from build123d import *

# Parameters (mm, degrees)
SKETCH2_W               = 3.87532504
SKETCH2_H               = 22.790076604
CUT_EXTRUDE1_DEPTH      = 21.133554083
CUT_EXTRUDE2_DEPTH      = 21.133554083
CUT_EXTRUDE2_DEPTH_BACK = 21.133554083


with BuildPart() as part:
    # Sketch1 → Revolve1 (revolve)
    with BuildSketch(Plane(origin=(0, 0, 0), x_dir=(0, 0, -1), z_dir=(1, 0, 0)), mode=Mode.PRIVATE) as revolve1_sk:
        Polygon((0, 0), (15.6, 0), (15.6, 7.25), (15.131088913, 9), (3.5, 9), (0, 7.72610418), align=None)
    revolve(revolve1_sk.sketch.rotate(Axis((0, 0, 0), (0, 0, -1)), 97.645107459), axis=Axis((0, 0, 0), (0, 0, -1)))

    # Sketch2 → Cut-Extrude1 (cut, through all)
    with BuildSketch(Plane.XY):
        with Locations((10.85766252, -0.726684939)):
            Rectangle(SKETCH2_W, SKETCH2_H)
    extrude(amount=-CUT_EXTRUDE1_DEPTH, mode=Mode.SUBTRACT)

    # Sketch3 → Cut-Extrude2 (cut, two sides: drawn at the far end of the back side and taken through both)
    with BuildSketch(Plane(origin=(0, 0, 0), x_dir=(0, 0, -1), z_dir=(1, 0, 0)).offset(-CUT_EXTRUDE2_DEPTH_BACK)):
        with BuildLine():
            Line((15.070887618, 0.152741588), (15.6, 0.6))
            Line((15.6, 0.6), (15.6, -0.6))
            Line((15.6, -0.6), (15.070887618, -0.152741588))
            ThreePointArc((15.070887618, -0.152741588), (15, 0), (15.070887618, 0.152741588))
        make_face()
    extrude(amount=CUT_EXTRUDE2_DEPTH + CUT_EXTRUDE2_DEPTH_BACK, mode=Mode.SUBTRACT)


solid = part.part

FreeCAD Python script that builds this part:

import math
import FreeCAD as App
import Part
import Sketcher
Q = App.Units.Quantity

doc = App.newDocument("Part")
params = doc.addObject("Spreadsheet::Sheet", "Params")
for row, (alias, value) in enumerate([
    ("sketch1_height", "15.6 mm"),
    ("sketch1_width", "7.25 mm"),
    ("revolution_angle", "360 deg"),
    ("sketch3_radius", "0.2 mm"),
    ("sketch3_width", "1.2 mm"),
], start=1):
    params.set(f"A{row}", alias)
    params.set(f"B{row}", "=" + value)
    params.setAlias(f"B{row}", alias)

body = doc.addObject("PartDesign::Body", "Body")

# Sketch on YZ plane
sketch1 = body.newObject("Sketcher::SketchObject", "Sketch")
sketch1.AttachmentSupport = (doc.getObject("YZ_Plane"), [""])
sketch1.MapMode = "FlatFace"
sketch1.addGeometry([
    Part.LineSegment(App.Vector(0, 0, 0), App.Vector(0, -15.6, 0)),  # 0
    Part.LineSegment(App.Vector(0, -15.6, 0), App.Vector(7.2, -15.6, 0)),  # 1
    Part.LineSegment(App.Vector(7.2, -15.6, 0), App.Vector(9, -15.1, 0)),  # 2
    Part.LineSegment(App.Vector(9, -15.1, 0), App.Vector(9, -3.5, 0)),  # 3
    Part.LineSegment(App.Vector(9, -3.5, 0), App.Vector(7.7, 0, 0)),  # 4
    Part.LineSegment(App.Vector(7.7, 0, 0), App.Vector(0, 0, 0)),  # 5
], False)
sketch1.addConstraint([
    Sketcher.Constraint("Coincident", 0, 2, 1, 1),
    Sketcher.Constraint("Coincident", 1, 2, 2, 1),
    Sketcher.Constraint("Coincident", 2, 2, 3, 1),
    Sketcher.Constraint("Coincident", 3, 2, 4, 1),
    Sketcher.Constraint("Coincident", 4, 2, 5, 1),
    Sketcher.Constraint("Coincident", 5, 2, 0, 1),
    Sketcher.Constraint("Vertical", 0),
    Sketcher.Constraint("Horizontal", 1),
    Sketcher.Constraint("Vertical", 3),
    Sketcher.Constraint("Horizontal", 5),
    Sketcher.Constraint("Coincident", 5, 2, -1, 1),
    Sketcher.Constraint("Angle", 2, Q("15 deg")),
    Sketcher.Constraint("Angle", 4, Q("110 deg")),
    Sketcher.Constraint("DistanceY", 0, 2, 0, 1, 15.6),
    Sketcher.Constraint("DistanceX", -1, 1, 2, 2, 9.0),
    Sketcher.Constraint("DistanceX", 1, 1, 1, 2, 7.25),
    Sketcher.Constraint("DistanceY", 3, 2, -1, 1, 3.5),
])
sketch1.setExpression("Constraints[13]", "Params.sketch1_height")
sketch1.setExpression("Constraints[15]", "Params.sketch1_width")
revolution = body.newObject("PartDesign::Revolution", "Revolution")
revolution.Profile = sketch1
revolution.ReferenceAxis = (sketch1, ["V_Axis"])
revolution.setExpression("Angle", "Params.revolution_angle")

# Sketch on XY plane
sketch2 = body.newObject("Sketcher::SketchObject", "Sketch001")
sketch2.AttachmentSupport = (doc.getObject("XY_Plane"), [""])
sketch2.MapMode = "FlatFace"
sketch2.addGeometry([
    Part.LineSegment(App.Vector(8.9, 10.7, 0), App.Vector(8.9, -12.1, 0)),
    Part.LineSegment(App.Vector(8.9, -12.1, 0), App.Vector(12.8, -12.1, 0)),
    Part.LineSegment(App.Vector(12.8, -12.1, 0), App.Vector(12.8, 10.7, 0)),
    Part.LineSegment(App.Vector(12.8, 10.7, 0), App.Vector(8.9, 10.7, 0)),
], False)
sketch2.addConstraint([
    Sketcher.Constraint("Coincident", 0, 2, 1, 1),
    Sketcher.Constraint("Coincident", 1, 2, 2, 1),
    Sketcher.Constraint("Coincident", 2, 2, 3, 1),
    Sketcher.Constraint("Coincident", 3, 2, 0, 1),
    Sketcher.Constraint("Vertical", 0),
    Sketcher.Constraint("Horizontal", 1),
    Sketcher.Constraint("Vertical", 2),
    Sketcher.Constraint("Horizontal", 3),
    Sketcher.Constraint("DistanceX", -1, 1, 0, 2, 8.92),
    Sketcher.Constraint("DistanceX", 1, 1, 1, 2, 3.875325),
    Sketcher.Constraint("DistanceY", 0, 2, 0, 1, 22.790077),
    Sketcher.Constraint("DistanceY", 0, 2, -1, 1, 12.121723),
])
pocket1 = body.newObject("PartDesign::Pocket", "Pocket")
pocket1.Profile = sketch2
pocket1.Type = "ThroughAll"

# Sketch on YZ plane
sketch3 = body.newObject("Sketcher::SketchObject", "Sketch002")
sketch3.AttachmentSupport = (doc.getObject("YZ_Plane"), [""])
sketch3.MapMode = "FlatFace"
sketch3.addGeometry([
    Part.LineSegment(App.Vector(0.6, -15.6, 0), App.Vector(0.15, -15.07, 0)),
    Part.ArcOfCircle(Part.Circle(App.Vector(0, -15.2, 0), App.Vector(0, 0, 1), 0.2), math.radians(40), math.radians(140)),
    Part.LineSegment(App.Vector(-0.15, -15.07, 0), App.Vector(-0.6, -15.6, 0)),
    Part.LineSegment(App.Vector(-0.6, -15.6, 0), App.Vector(0.6, -15.6, 0)),
], False)
sketch3.addConstraint([
    Sketcher.Constraint("Tangent", 0, 2, 1, 1),
    Sketcher.Constraint("Tangent", 1, 2, 2, 1),
    Sketcher.Constraint("Coincident", 2, 2, 3, 1),
    Sketcher.Constraint("Coincident", 3, 2, 0, 1),
    Sketcher.Constraint("Horizontal", 3),
    Sketcher.Constraint("Symmetric", 0, 2, 1, 2, -2),
    Sketcher.Constraint("Radius", 1, 0.2),
    Sketcher.Constraint("DistanceX", 3, 1, 3, 2, 1.2),
    Sketcher.Constraint("DistanceY", 1, 3, -1, 1, 15.2),
    Sketcher.Constraint("DistanceY", 2, 2, -1, 1, 15.6),
])
sketch3.setExpression("Constraints[6]", "Params.sketch3_radius")
sketch3.setExpression("Constraints[7]", "Params.sketch3_width")
pocket2 = body.newObject("PartDesign::Pocket", "Pocket001")
pocket2.Profile = sketch3
pocket2.Type = "ThroughAll"
pocket2.Midplane = True

doc.recompute()
